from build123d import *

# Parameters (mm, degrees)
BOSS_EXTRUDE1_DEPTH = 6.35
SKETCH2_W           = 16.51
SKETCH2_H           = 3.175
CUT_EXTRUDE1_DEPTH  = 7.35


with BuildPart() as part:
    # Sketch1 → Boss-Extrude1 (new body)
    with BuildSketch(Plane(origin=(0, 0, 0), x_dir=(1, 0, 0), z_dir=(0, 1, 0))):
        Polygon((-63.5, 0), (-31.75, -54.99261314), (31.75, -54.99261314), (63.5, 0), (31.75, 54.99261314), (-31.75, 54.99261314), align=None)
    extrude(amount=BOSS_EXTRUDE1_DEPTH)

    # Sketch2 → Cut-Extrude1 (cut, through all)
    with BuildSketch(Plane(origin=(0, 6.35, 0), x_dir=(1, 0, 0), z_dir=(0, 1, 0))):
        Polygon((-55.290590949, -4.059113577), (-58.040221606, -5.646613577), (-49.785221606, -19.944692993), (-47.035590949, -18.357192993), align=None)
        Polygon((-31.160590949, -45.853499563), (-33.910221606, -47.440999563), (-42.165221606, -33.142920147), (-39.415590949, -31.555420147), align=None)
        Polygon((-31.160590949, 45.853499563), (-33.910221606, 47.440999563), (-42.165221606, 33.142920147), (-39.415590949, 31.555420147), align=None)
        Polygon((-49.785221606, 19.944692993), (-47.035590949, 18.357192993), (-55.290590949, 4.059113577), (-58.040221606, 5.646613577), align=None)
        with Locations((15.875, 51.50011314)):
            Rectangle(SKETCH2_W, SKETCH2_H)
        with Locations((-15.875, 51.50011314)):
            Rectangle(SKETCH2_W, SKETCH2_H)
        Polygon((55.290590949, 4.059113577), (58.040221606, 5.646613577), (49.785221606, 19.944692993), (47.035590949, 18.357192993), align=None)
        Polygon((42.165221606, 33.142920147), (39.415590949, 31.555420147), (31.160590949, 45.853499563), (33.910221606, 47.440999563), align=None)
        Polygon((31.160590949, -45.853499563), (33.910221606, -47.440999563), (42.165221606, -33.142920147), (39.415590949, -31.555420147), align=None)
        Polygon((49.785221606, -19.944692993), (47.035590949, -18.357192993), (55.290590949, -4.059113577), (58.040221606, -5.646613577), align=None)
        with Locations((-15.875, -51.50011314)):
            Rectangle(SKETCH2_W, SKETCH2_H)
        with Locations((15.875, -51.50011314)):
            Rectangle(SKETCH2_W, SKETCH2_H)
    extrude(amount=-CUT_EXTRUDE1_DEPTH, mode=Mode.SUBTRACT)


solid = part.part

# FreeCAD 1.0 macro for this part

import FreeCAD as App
import Part
import Sketcher

V = App.Vector
Q = App.Units.Quantity

doc = App.newDocument("Part")
params = doc.addObject("Spreadsheet::Sheet", "Params")
for row, (alias, value) in enumerate([
    ("sketch1_width", "2.5 in"),
    ("pad1_length", "0.25 in"),
    ("sketch2_width", "0.65 in"),
    ("sketch2_length", "0.65 in"),
    ("sketch2_height", "0.125 in"),
    ("sketch2_length2", "0.125 in"),
], start=1):
    params.set(f"A{row}", alias)
    params.set(f"B{row}", "=" + value)
    params.setAlias(f"B{row}", alias)

body = doc.addObject("PartDesign::Body", "Body")

sketch1 = body.newObject("Sketcher::SketchObject", "Sketch")
sketch1.AttachmentSupport = (doc.getObject("XZ_Plane"), [""])
sketch1.MapMode = "FlatFace"
sketch1.addGeometry([
    Part.LineSegment(V(-63.5, 0, 0), V(-31.75, 54.992613, 0)),
    Part.LineSegment(V(-31.75, 54.992613, 0), V(31.75, 54.992613, 0)),
    Part.LineSegment(V(31.75, 54.992613, 0), V(63.5, 0, 0)),
    Part.LineSegment(V(63.5, 0, 0), V(31.75, -54.992613, 0)),
    Part.LineSegment(V(31.75, -54.992613, 0), V(-31.75, -54.992613, 0)),
    Part.LineSegment(V(-31.75, -54.992613, 0), V(-63.5, 0, 0)),
], False)
sketch1.addConstraint([
    Sketcher.Constraint("Coincident", 0, 2, 1, 1),
    Sketcher.Constraint("Coincident", 1, 2, 2, 1),
    Sketcher.Constraint("Coincident", 2, 2, 3, 1),
    Sketcher.Constraint("Coincident", 3, 2, 4, 1),
    Sketcher.Constraint("Coincident", 4, 2, 5, 1),
    Sketcher.Constraint("Coincident", 5, 2, 0, 1),
    Sketcher.Constraint("Horizontal", 1),
    Sketcher.Constraint("Horizontal", 4),
    Sketcher.Constraint("Symmetric", 0, 2, 3, 2, -1, 1),
    Sketcher.Constraint("Symmetric", 2, 2, 5, 2, -1, 1),
    Sketcher.Constraint("PointOnObject", 2, 2, -1),
    Sketcher.Constraint("Parallel", 2, 5),
    Sketcher.Constraint("Vertical", 1, 2, 3, 2),
    Sketcher.Constraint("DistanceX", 1, 1, 1, 2, Q("2.5 in")),
    Sketcher.Constraint("Angle", 0, Q("60 deg")),
    Sketcher.Constraint("DistanceX", 5, 2, 2, 2, Q("5 in")),
])
sketch1.setExpression("Constraints[13]", "Params.sketch1_width")
pad1 = body.newObject("PartDesign::Pad", "Pad")
pad1.Profile = sketch1
pad1.setExpression("Length", "Params.pad1_length")
pad1.Reversed = True

sketch2 = body.newObject("Sketcher::SketchObject", "Sketch001")
sketch2.AttachmentSupport = (doc.getObject("XZ_Plane"), [""])
sketch2.MapMode = "FlatFace"
sketch2.AttachmentOffset = App.Placement(V(0, 0, -0.25 * 25.4), App.Rotation())
sketch2.addGeometry([
    Part.LineSegment(V(-55.290591, 4.059114, 0), V(-58.040222, 5.646614, 0)),
    Part.LineSegment(V(-58.040222, 5.646614, 0), V(-49.785222, 19.944693, 0)),
    Part.LineSegment(V(-49.785222, 19.944693, 0), V(-47.035591, 18.357193, 0)),
    Part.LineSegment(V(-47.035591, 18.357193, 0), V(-55.290591, 4.059114, 0)),
    Part.LineSegment(V(-33.910222, 47.441, 0), V(-31.160591, 45.8535, 0)),
    Part.LineSegment(V(-31.160591, 45.8535, 0), V(-39.415591, 31.55542, 0)),
    Part.LineSegment(V(-39.415591, 31.55542, 0), V(-42.165222, 33.14292, 0)),
    Part.LineSegment(V(-42.165222, 33.14292, 0), V(-33.910222, 47.441, 0)),
    Part.LineSegment(V(-31.160591, -45.8535, 0), V(-33.910222, -47.441, 0)),
    Part.LineSegment(V(-33.910222, -47.441, 0), V(-42.165222, -33.14292, 0)),
    Part.LineSegment(V(-42.165222, -33.14292, 0), V(-39.415591, -31.55542, 0)),
    Part.LineSegment(V(-39.415591, -31.55542, 0), V(-31.160591, -45.8535, 0)),
    Part.LineSegment(V(-47.035591, -18.357193, 0), V(-49.785222, -19.944693, 0)),
    Part.LineSegment(V(-49.785222, -19.944693, 0), V(-58.040222, -5.646614, 0)),
    Part.LineSegment(V(-58.040222, -5.646614, 0), V(-55.290591, -4.059114, 0)),
    Part.LineSegment(V(-55.290591, -4.059114, 0), V(-47.035591, -18.357193, 0)),
    Part.LineSegment(V(7.62, -53.087613, 0), V(7.62, -49.912613, 0)),
    Part.LineSegment(V(7.62, -49.912613, 0), V(24.13, -49.912613, 0)),
    Part.LineSegment(V(24.13, -49.912613, 0), V(24.13, -53.087613, 0)),
    Part.LineSegment(V(24.13, -53.087613, 0), V(7.62, -53.087613, 0)),
    Part.LineSegment(V(-24.13, -53.087613, 0), V(-24.13, -49.912613, 0)),
    Part.LineSegment(V(-24.13, -49.912613, 0), V(-7.62, -49.912613, 0)),
    Part.LineSegment(V(-7.62, -49.912613, 0), V(-7.62, -53.087613, 0)),
    Part.LineSegment(V(-7.62, -53.087613, 0), V(-24.13, -53.087613, 0)),
    Part.LineSegment(V(55.290591, -4.059114, 0), V(58.040222, -5.646614, 0)),
    Part.LineSegment(V(58.040222, -5.646614, 0), V(49.785222, -19.944693, 0)),
    Part.LineSegment(V(49.785222, -19.944693, 0), V(47.035591, -18.357193, 0)),
    Part.LineSegment(V(47.035591, -18.357193, 0), V(55.290591, -4.059114, 0)),
    Part.LineSegment(V(39.415591, -31.55542, 0), V(42.165222, -33.14292, 0)),
    Part.LineSegment(V(42.165222, -33.14292, 0), V(33.910222, -47.441, 0)),
    Part.LineSegment(V(33.910222, -47.441, 0), V(31.160591, -45.8535, 0)),
    Part.LineSegment(V(31.160591, -45.8535, 0), V(39.415591, -31.55542, 0)),
    Part.LineSegment(V(31.160591, 45.8535, 0), V(33.910222, 47.441, 0)),
    Part.LineSegment(V(33.910222, 47.441, 0), V(42.165222, 33.14292, 0)),
    Part.LineSegment(V(42.165222, 33.14292, 0), V(39.415591, 31.55542, 0)),
    Part.LineSegment(V(39.415591, 31.55542, 0), V(31.160591, 45.8535, 0)),
    Part.LineSegment(V(47.035591, 18.357193, 0), V(49.785222, 19.944693, 0)),
    Part.LineSegment(V(49.785222, 19.944693, 0), V(58.040222, 5.646614, 0)),
    Part.LineSegment(V(58.040222, 5.646614, 0), V(55.290591, 4.059114, 0)),
    Part.LineSegment(V(55.290591, 4.059114, 0), V(47.035591, 18.357193, 0)),
    Part.LineSegment(V(-24.13, 49.912613, 0), V(-24.13, 53.087613, 0)),
    Part.LineSegment(V(-24.13, 53.087613, 0), V(-7.62, 53.087613, 0)),
    Part.LineSegment(V(-7.62, 53.087613, 0), V(-7.62, 49.912613, 0)),
    Part.LineSegment(V(-7.62, 49.912613, 0), V(-24.13, 49.912613, 0)),
    Part.LineSegment(V(7.62, 49.912613, 0), V(7.62, 53.087613, 0)),
    Part.LineSegment(V(7.62, 53.087613, 0), V(24.13, 53.087613, 0)),
    Part.LineSegment(V(24.13, 53.087613, 0), V(24.13, 49.912613, 0)),
    Part.LineSegment(V(24.13, 49.912613, 0), V(7.62, 49.912613, 0)),
], False)
sketch2.addConstraint([
    Sketcher.Constraint("Coincident", 0, 2, 1, 1),
    Sketcher.Constraint("Coincident", 1, 2, 2, 1),
    Sketcher.Constraint("Coincident", 2, 2, 3, 1),
    Sketcher.Constraint("Coincident", 3, 2, 0, 1),
    Sketcher.Constraint("Coincident", 4, 2, 5, 1),
    Sketcher.Constraint("Coincident", 5, 2, 6, 1),
    Sketcher.Constraint("Coincident", 6, 2, 7, 1),
    Sketcher.Constraint("Coincident", 7, 2, 4, 1),
    Sketcher.Constraint("Coincident", 8, 2, 9, 1),
    Sketcher.Constraint("Coincident", 9, 2, 10, 1),
    Sketcher.Constraint("Coincident", 10, 2, 11, 1),
    Sketcher.Constraint("Coincident", 11, 2, 8, 1),
    Sketcher.Constraint("Coincident", 12, 2, 13, 1),
    Sketcher.Constraint("Coincident", 13, 2, 14, 1),
    Sketcher.Constraint("Coincident", 14, 2, 15, 1),
    Sketcher.Constraint("Coincident", 15, 2, 12, 1),
    Sketcher.Constraint("Coincident", 16, 2, 17, 1),
    Sketcher.Constraint("Coincident", 17, 2, 18, 1),
    Sketcher.Constraint("Coincident", 18, 2, 19, 1),
    Sketcher.Constraint("Coincident", 19, 2, 16, 1),
    Sketcher.Constraint("Coincident", 20, 2, 21, 1),
    Sketcher.Constraint("Coincident", 21, 2, 22, 1),
    Sketcher.Constraint("Coincident", 22, 2, 23, 1),
    Sketcher.Constraint("Coincident", 23, 2, 20, 1),
    Sketcher.Constraint("Coincident", 24, 2, 25, 1),
    Sketcher.Constraint("Coincident", 25, 2, 26, 1),
    Sketcher.Constraint("Coincident", 26, 2, 27, 1),
    Sketcher.Constraint("Coincident", 27, 2, 24, 1),
    Sketcher.Constraint("Coincident", 28, 2, 29, 1),
    Sketcher.Constraint("Coincident", 29, 2, 30, 1),
    Sketcher.Constraint("Coincident", 30, 2, 31, 1),
    Sketcher.Constraint("Coincident", 31, 2, 28, 1),
    Sketcher.Constraint("Coincident", 32, 2, 33, 1),
    Sketcher.Constraint("Coincident", 33, 2, 34, 1),
    Sketcher.Constraint("Coincident", 34, 2, 35, 1),
    Sketcher.Constraint("Coincident", 35, 2, 32, 1),
    Sketcher.Constraint("Coincident", 36, 2, 37, 1),
    Sketcher.Constraint("Coincident", 37, 2, 38, 1),
    Sketcher.Constraint("Coincident", 38, 2, 39, 1),
    Sketcher.Constraint("Coincident", 39, 2, 36, 1),
    Sketcher.Constraint("Coincident", 40, 2, 41, 1),
    Sketcher.Constraint("Coincident", 41, 2, 42, 1),
    Sketcher.Constraint("Coincident", 42, 2, 43, 1),
    Sketcher.Constraint("Coincident", 43, 2, 40, 1),
    Sketcher.Constraint("Coincident", 44, 2, 45, 1),
    Sketcher.Constraint("Coincident", 45, 2, 46, 1),
    Sketcher.Constraint("Coincident", 46, 2, 47, 1),
    Sketcher.Constraint("Coincident", 47, 2, 44, 1),
    Sketcher.Constraint("Vertical", 16),
    Sketcher.Constraint("Horizontal", 17),
    Sketcher.Constraint("Vertical", 18),
    Sketcher.Constraint("Horizontal", 19),
    Sketcher.Constraint("Vertical", 20),
    Sketcher.Constraint("Horizontal", 21),
    Sketcher.Constraint("Vertical", 22),
    Sketcher.Constraint("Horizontal", 23),
    Sketcher.Constraint("Vertical", 40),
    Sketcher.Constraint("Horizontal", 41),
    Sketcher.Constraint("Vertical", 42),
    Sketcher.Constraint("Horizontal", 43),
    Sketcher.Constraint("Vertical", 44),
    Sketcher.Constraint("Horizontal", 45),
    Sketcher.Constraint("Vertical", 46),
    Sketcher.Constraint("Horizontal", 47),
    Sketcher.Constraint("Symmetric", 0, 2, 24, 2, -1, 1),
    Sketcher.Constraint("Symmetric", 1, 2, 25, 2, -1, 1),
    Sketcher.Constraint("Symmetric", 2, 2, 26, 2, -1, 1),
    Sketcher.Constraint("Symmetric", 3, 2, 27, 2, -1, 1),
    Sketcher.Constraint("Symmetric", 6, 2, 28, 2, -1, 1),
    Sketcher.Constraint("Symmetric", 7, 2, 29, 2, -1, 1),
    Sketcher.Constraint("Symmetric", 4, 2, 30, 2, -1, 1),
    Sketcher.Constraint("Symmetric", 5, 2, 31, 2, -1, 1),
    Sketcher.Constraint("Symmetric", 8, 2, 32, 2, -1, 1),
    Sketcher.Constraint("Symmetric", 9, 2, 33, 2, -1, 1),
    Sketcher.Constraint("Symmetric", 10, 2, 34, 2, -1, 1),
    Sketcher.Constraint("Symmetric", 11, 2, 35, 2, -1, 1),
    Sketcher.Constraint("Symmetric", 12, 2, 36, 2, -1, 1),
    Sketcher.Constraint("Symmetric", 13, 2, 37, 2, -1, 1),
    Sketcher.Constraint("Symmetric", 14, 2, 38, 2, -1, 1),
    Sketcher.Constraint("Symmetric", 15, 2, 39, 2, -1, 1),
    Sketcher.Constraint("Symmetric", 18, 2, 40, 2, -1, 1),
    Sketcher.Constraint("Symmetric", 16, 2, 42, 2, -1, 1),
    Sketcher.Constraint("Symmetric", 22, 2, 44, 2, -1, 1),
    Sketcher.Constraint("Symmetric", 20, 2, 46, 2, -1, 1),
    Sketcher.Constraint("Symmetric", 17, 2, 20, 2, -2),
    Sketcher.Constraint("Symmetric", 19, 2, 22, 2, -2),
    Sketcher.Constraint("Symmetric", 13, 2, 24, 2, -2),
    Sketcher.Constraint("Symmetric", 12, 2, 25, 2, -2),
    Sketcher.Constraint("Symmetric", 15, 2, 26, 2, -2),
    Sketcher.Constraint("Symmetric", 14, 2, 27, 2, -2),
    Sketcher.Constraint("Symmetric", 9, 2, 28, 2, -2),
    Sketcher.Constraint("Symmetric", 8, 2, 29, 2, -2),
    Sketcher.Constraint("Symmetric", 11, 2, 30, 2, -2),
    Sketcher.Constraint("Symmetric", 10, 2, 31, 2, -2),
    Sketcher.Constraint("Perpendicular", 0, 1),
    Sketcher.Constraint("Perpendicular", 1, 2),
    Sketcher.Constraint("Perpendicular", 2, 3),
    Sketcher.Constraint("Perpendicular", 3, 4),
    Sketcher.Constraint("Perpendicular", 4, 5),
    Sketcher.Constraint("Perpendicular", 5, 6),
    Sketcher.Constraint("Perpendicular", 6, 7),
    Sketcher.Constraint("Equal", 2, 4),
    Sketcher.Constraint("Equal", 3, 5),
    Sketcher.Constraint("Angle", 0, Q("150 deg")),
    Sketcher.Constraint("DistanceX", 17, 1, 17, 2, Q("0.65 in")),
    Sketcher.Constraint("DistanceX", -1, 1, 16, 2, Q("0.3 in")),
    Sketcher.Constraint("DistanceX", 2, 2, 5, 2, Q("0.3 in")),
    Sketcher.Constraint("Distance", 1, Q("0.65 in")),
    Sketcher.Constraint("DistanceY", 16, 1, 16, 2, Q("0.125 in")),
    Sketcher.Constraint("Distance", 0, Q("0.125 in")),
    Sketcher.Constraint("DistanceY", -1, 1, 4, 2, 45.8535),
    Sketcher.Constraint("DistanceY", 17, 2, 24, 2, 44.266),
    Sketcher.Constraint("DistanceX", 0, 2, -1, 1, 58.040222),
    Sketcher.Constraint("DistanceY", -1, 1, 0, 2, 5.646614),
])
sketch2.setExpression("Constraints[104]", "Params.sketch2_width")
sketch2.setExpression("Constraints[107]", "Params.sketch2_length")
sketch2.setExpression("Constraints[108]", "Params.sketch2_height")
sketch2.setExpression("Constraints[109]", "Params.sketch2_length2")
pocket1 = body.newObject("PartDesign::Pocket", "Pocket")
pocket1.Profile = sketch2
pocket1.Type = "ThroughAll"
pocket1.Reversed = True

doc.recompute()
